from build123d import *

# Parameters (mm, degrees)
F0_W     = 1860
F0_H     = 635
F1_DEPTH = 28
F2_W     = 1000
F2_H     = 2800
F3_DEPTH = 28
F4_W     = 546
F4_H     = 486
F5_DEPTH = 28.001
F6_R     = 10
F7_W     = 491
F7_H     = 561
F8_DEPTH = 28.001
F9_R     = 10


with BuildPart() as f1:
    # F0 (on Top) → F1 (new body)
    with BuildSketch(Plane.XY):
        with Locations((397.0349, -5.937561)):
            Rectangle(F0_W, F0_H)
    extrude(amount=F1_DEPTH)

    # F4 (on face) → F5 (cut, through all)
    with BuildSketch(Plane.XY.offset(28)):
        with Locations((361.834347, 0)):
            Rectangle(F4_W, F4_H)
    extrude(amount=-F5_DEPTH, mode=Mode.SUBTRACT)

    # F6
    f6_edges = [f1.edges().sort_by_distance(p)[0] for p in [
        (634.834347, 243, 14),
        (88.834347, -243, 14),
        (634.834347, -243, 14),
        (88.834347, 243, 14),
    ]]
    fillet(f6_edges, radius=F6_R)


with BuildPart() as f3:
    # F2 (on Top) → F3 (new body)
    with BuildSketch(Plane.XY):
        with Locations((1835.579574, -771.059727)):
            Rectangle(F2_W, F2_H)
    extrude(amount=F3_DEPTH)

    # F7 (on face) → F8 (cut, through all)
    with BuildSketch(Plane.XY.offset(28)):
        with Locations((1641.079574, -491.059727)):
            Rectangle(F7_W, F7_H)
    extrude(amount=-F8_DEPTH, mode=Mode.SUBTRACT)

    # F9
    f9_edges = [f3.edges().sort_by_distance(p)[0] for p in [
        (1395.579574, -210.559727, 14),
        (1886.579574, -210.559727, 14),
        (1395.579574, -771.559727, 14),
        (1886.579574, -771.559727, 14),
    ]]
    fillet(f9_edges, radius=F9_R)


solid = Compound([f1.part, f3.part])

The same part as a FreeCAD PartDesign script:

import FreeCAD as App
import Part
import Sketcher


def edges_at(feature, points):
    """Names of the edges that pass closest to the given points."""
    edges = feature.Shape.Edges
    near = lambda p: min(range(len(edges)), key=lambda i: edges[i].distToShape(Part.Vertex(*p))[0])
    return sorted({f"Edge{near(p) + 1}" for p in points})

doc = App.newDocument("Part")
body = doc.addObject("PartDesign::Body", "Body")

# Sketch on XY plane
sketch1 = doc.addObject("Sketcher::SketchObject", "Sketch")
body.addObject(sketch1)
sketch1.AttachmentSupport = (doc.XY_Plane, [""])
sketch1.MapMode = "FlatFace"
sketch1.addGeometry(Part.LineSegment(App.Vector(-533, 312, 0), App.Vector(-533, -323, 0)), False)
sketch1.addGeometry(Part.LineSegment(App.Vector(-533, -323, 0), App.Vector(1327, -323, 0)), False)
sketch1.addGeometry(Part.LineSegment(App.Vector(1327, -323, 0), App.Vector(1327, 312, 0)), False)
sketch1.addGeometry(Part.LineSegment(App.Vector(1327, 312, 0), App.Vector(-533, 312, 0)), False)
sketch1.addConstraint(Sketcher.Constraint("Coincident", 0, 2, 1, 1))
sketch1.addConstraint(Sketcher.Constraint("Coincident", 1, 2, 2, 1))
sketch1.addConstraint(Sketcher.Constraint("Coincident", 2, 2, 3, 1))
sketch1.addConstraint(Sketcher.Constraint("Coincident", 3, 2, 0, 1))
sketch1.addConstraint(Sketcher.Constraint("Vertical", 0))
sketch1.addConstraint(Sketcher.Constraint("Horizontal", 1))
sketch1.addConstraint(Sketcher.Constraint("Vertical", 2))
sketch1.addConstraint(Sketcher.Constraint("Horizontal", 3))
sketch1.addConstraint(Sketcher.Constraint("DistanceX", 1, 1, 1, 2, 1860.0))
sketch1.addConstraint(Sketcher.Constraint("DistanceY", 0, 2, 0, 1, 635.0))
sketch1.addConstraint(Sketcher.Constraint("DistanceX", 0, 2, -1, 1, 532.9651))
sketch1.addConstraint(Sketcher.Constraint("DistanceY", 0, 2, -1, 1, 323.437561))
pad1 = doc.addObject("PartDesign::Pad", "Pad")
body.addObject(pad1)
pad1.Profile = sketch1
pad1.Length = 28

# Sketch on XY plane
sketch2 = doc.addObject("Sketcher::SketchObject", "Sketch001")
body.addObject(sketch2)
sketch2.AttachmentSupport = (doc.XY_Plane, [""])
sketch2.MapMode = "FlatFace"
sketch2.AttachmentOffset = App.Placement(App.Vector(0, 0, 28), App.Rotation())
sketch2.addGeometry(Part.LineSegment(App.Vector(89, 243, 0), App.Vector(89, -243, 0)), False)
sketch2.addGeometry(Part.LineSegment(App.Vector(89, -243, 0), App.Vector(635, -243, 0)), False)
sketch2.addGeometry(Part.LineSegment(App.Vector(635, -243, 0), App.Vector(635, 243, 0)), False)
sketch2.addGeometry(Part.LineSegment(App.Vector(635, 243, 0), App.Vector(89, 243, 0)), False)
sketch2.addConstraint(Sketcher.Constraint("Coincident", 0, 2, 1, 1))
sketch2.addConstraint(Sketcher.Constraint("Coincident", 1, 2, 2, 1))
sketch2.addConstraint(Sketcher.Constraint("Coincident", 2, 2, 3, 1))
sketch2.addConstraint(Sketcher.Constraint("Coincident", 3, 2, 0, 1))
sketch2.addConstraint(Sketcher.Constraint("Vertical", 0))
sketch2.addConstraint(Sketcher.Constraint("Horizontal", 1))
sketch2.addConstraint(Sketcher.Constraint("Vertical", 2))
sketch2.addConstraint(Sketcher.Constraint("Horizontal", 3))
sketch2.addConstraint(Sketcher.Constraint("DistanceX", 1, 1, 1, 2, 546.0))
sketch2.addConstraint(Sketcher.Constraint("DistanceY", 0, 2, 0, 1, 486.0))
sketch2.addConstraint(Sketcher.Constraint("DistanceY", 0, 2, -1, 1, 243.0))
sketch2.addConstraint(Sketcher.Constraint("DistanceX", -1, 1, 0, 2, 88.834347))
pocket1 = doc.addObject("PartDesign::Pocket", "Pocket")
body.addObject(pocket1)
pocket1.Profile = sketch2
pocket1.Type = "ThroughAll"
doc.recompute()

fillet = doc.addObject("PartDesign::Fillet", "Fillet")
body.addObject(fillet)
fillet.Base = (pocket1, edges_at(pocket1, [
    (634.834, 243, 14),
    (88.834, -243, 14),
    (634.834, -243, 14),
    (88.834, 243, 14),
]))
fillet.Radius = 10
body2 = doc.addObject("PartDesign::Body", "Body001")

# Sketch on XY plane
sketch3 = doc.addObject("Sketcher::SketchObject", "Sketch002")
body2.addObject(sketch3)
sketch3.AttachmentSupport = (doc.getObject("XY_Plane001"), [""])
sketch3.MapMode = "FlatFace"
sketch3.addGeometry(Part.LineSegment(App.Vector(1336, 629, 0), App.Vector(1336, -2171, 0)), False)
sketch3.addGeometry(Part.LineSegment(App.Vector(1336, -2171, 0), App.Vector(2336, -2171, 0)), False)
sketch3.addGeometry(Part.LineSegment(App.Vector(2336, -2171, 0), App.Vector(2336, 629, 0)), False)
sketch3.addGeometry(Part.LineSegment(App.Vector(2336, 629, 0), App.Vector(1336, 629, 0)), False)
sketch3.addConstraint(Sketcher.Constraint("Coincident", 0, 2, 1, 1))
sketch3.addConstraint(Sketcher.Constraint("Coincident", 1, 2, 2, 1))
sketch3.addConstraint(Sketcher.Constraint("Coincident", 2, 2, 3, 1))
sketch3.addConstraint(Sketcher.Constraint("Coincident", 3, 2, 0, 1))
sketch3.addConstraint(Sketcher.Constraint("Vertical", 0))
sketch3.addConstraint(Sketcher.Constraint("Horizontal", 1))
sketch3.addConstraint(Sketcher.Constraint("Vertical", 2))
sketch3.addConstraint(Sketcher.Constraint("Horizontal", 3))
sketch3.addConstraint(Sketcher.Constraint("DistanceX", 1, 1, 1, 2, 1000.0))
sketch3.addConstraint(Sketcher.Constraint("DistanceY", 0, 2, 0, 1, 2800.0))
sketch3.addConstraint(Sketcher.Constraint("DistanceX", -1, 1, 0, 2, 1335.579574))
sketch3.addConstraint(Sketcher.Constraint("DistanceY", 0, 2, -1, 1, 2171.059727))
pad2 = doc.addObject("PartDesign::Pad", "Pad001")
body2.addObject(pad2)
pad2.Profile = sketch3
pad2.Length = 28

# Sketch on XY plane
sketch4 = doc.addObject("Sketcher::SketchObject", "Sketch003")
body2.addObject(sketch4)
sketch4.AttachmentSupport = (doc.getObject("XY_Plane001"), [""])
sketch4.MapMode = "FlatFace"
sketch4.AttachmentOffset = App.Placement(App.Vector(0, 0, 28), App.Rotation())
sketch4.addGeometry(Part.LineSegment(App.Vector(1396, -211, 0), App.Vector(1396, -772, 0)), False)
sketch4.addGeometry(Part.LineSegment(App.Vector(1396, -772, 0), App.Vector(1887, -772, 0)), False)
sketch4.addGeometry(Part.LineSegment(App.Vector(1887, -772, 0), App.Vector(1887, -211, 0)), False)
sketch4.addGeometry(Part.LineSegment(App.Vector(1887, -211, 0), App.Vector(1396, -211, 0)), False)
sketch4.addConstraint(Sketcher.Constraint("Coincident", 0, 2, 1, 1))
sketch4.addConstraint(Sketcher.Constraint("Coincident", 1, 2, 2, 1))
sketch4.addConstraint(Sketcher.Constraint("Coincident", 2, 2, 3, 1))
sketch4.addConstraint(Sketcher.Constraint("Coincident", 3, 2, 0, 1))
sketch4.addConstraint(Sketcher.Constraint("Vertical", 0))
sketch4.addConstraint(Sketcher.Constraint("Horizontal", 1))
sketch4.addConstraint(Sketcher.Constraint("Vertical", 2))
sketch4.addConstraint(Sketcher.Constraint("Horizontal", 3))
sketch4.addConstraint(Sketcher.Constraint("DistanceX", 1, 1, 1, 2, 491.0))
sketch4.addConstraint(Sketcher.Constraint("DistanceY", 0, 2, 0, 1, 561.0))
sketch4.addConstraint(Sketcher.Constraint("DistanceX", -1, 1, 0, 2, 1395.579574))
sketch4.addConstraint(Sketcher.Constraint("DistanceY", 0, 2, -1, 1, 771.559727))
pocket2 = doc.addObject("PartDesign::Pocket", "Pocket001")
body2.addObject(pocket2)
pocket2.Profile = sketch4
pocket2.Type = "ThroughAll"
doc.recompute()

fillet2 = doc.addObject("PartDesign::Fillet", "Fillet001")
body2.addObject(fillet2)
fillet2.Base = (pocket2, edges_at(pocket2, [
    (1395.58, -210.56, 14),
    (1886.58, -210.56, 14),
    (1395.58, -771.56, 14),
    (1886.58, -771.56, 14),
]))
fillet2.Radius = 10

doc.recompute()
